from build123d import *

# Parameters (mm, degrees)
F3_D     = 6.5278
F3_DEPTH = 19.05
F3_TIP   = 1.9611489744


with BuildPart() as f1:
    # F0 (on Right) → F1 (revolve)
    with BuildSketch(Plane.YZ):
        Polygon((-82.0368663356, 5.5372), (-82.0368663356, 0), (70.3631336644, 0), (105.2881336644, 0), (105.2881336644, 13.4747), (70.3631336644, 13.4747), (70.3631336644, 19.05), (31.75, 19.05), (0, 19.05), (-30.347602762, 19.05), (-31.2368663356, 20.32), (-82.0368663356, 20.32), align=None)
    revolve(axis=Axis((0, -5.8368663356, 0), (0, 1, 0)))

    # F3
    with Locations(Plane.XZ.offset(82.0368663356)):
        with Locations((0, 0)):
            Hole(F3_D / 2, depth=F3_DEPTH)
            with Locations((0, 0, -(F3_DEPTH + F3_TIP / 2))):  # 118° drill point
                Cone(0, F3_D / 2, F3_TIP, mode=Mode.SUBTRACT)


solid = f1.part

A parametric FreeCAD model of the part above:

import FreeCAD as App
import Part
import Sketcher
from FreeCAD import Vector
Q = App.Units.Quantity

doc = App.newDocument("Part")
params = doc.addObject("Spreadsheet::Sheet", "Params")
for row, (alias, value) in enumerate([
    ("sketch1_width", "2 in"),
    ("sketch1_height", "0.8 in"),
    ("sketch1_width2", "7.375 in"),
    ("revolution_angle", "360 deg"),
    ("sketch2_diameter", "0.257 in"),
    ("hole_diameter", "0.257 in"),
    ("hole_depth", "0.75 in"),
], start=1):
    params.set(f"A{row}", alias)
    params.set(f"B{row}", "=" + value)
    params.setAlias(f"B{row}", alias)

body = doc.addObject("PartDesign::Body", "Body")

# Sketch on YZ plane
sketch1 = body.newObject("Sketcher::SketchObject", "Sketch")
sketch1.AttachmentSupport = (doc.getObject("YZ_Plane"), [""])
sketch1.MapMode = "FlatFace"
sketch1.addGeometry([
    Part.LineSegment(Vector(-82, 0, 0), Vector(105.3, 0, 0)),  # 0
    Part.LineSegment(Vector(105.3, 0, 0), Vector(105.3, 13.5, 0)),  # 1
    Part.LineSegment(Vector(105.3, 13.5, 0), Vector(70.4, 13.5, 0)),  # 2
    Part.LineSegment(Vector(70.4, 13.5, 0), Vector(70.4, 19.1, 0)),  # 3
    Part.LineSegment(Vector(70.4, 19.1, 0), Vector(-30.3, 19.1, 0)),  # 4
    Part.LineSegment(Vector(-30.3, 19.1, 0), Vector(-31.2, 20.3, 0)),  # 5
    Part.LineSegment(Vector(-31.2, 20.3, 0), Vector(-82, 20.3, 0)),  # 6
    Part.LineSegment(Vector(-82, 20.3, 0), Vector(-82, 0, 0)),  # 7
], False)
sketch1.addConstraint([
    Sketcher.Constraint("Coincident", 0, 2, 1, 1),
    Sketcher.Constraint("Coincident", 1, 2, 2, 1),
    Sketcher.Constraint("Coincident", 2, 2, 3, 1),
    Sketcher.Constraint("Coincident", 3, 2, 4, 1),
    Sketcher.Constraint("Coincident", 4, 2, 5, 1),
    Sketcher.Constraint("Coincident", 5, 2, 6, 1),
    Sketcher.Constraint("Coincident", 6, 2, 7, 1),
    Sketcher.Constraint("Coincident", 7, 2, 0, 1),
    Sketcher.Constraint("Horizontal", 0),
    Sketcher.Constraint("Vertical", 1),
    Sketcher.Constraint("Horizontal", 2),
    Sketcher.Constraint("Vertical", 3),
    Sketcher.Constraint("Horizontal", 4),
    Sketcher.Constraint("Horizontal", 6),
    Sketcher.Constraint("Vertical", 7),
    Sketcher.Constraint("PointOnObject", 0, 2, -1),
    Sketcher.Constraint("DistanceX", 6, 2, 6, 1, Q("2 in")),
    Sketcher.Constraint("DistanceY", 7, 2, 7, 1, Q("0.8 in")),
    Sketcher.Constraint("Angle", 5, Q("125 deg")),
    Sketcher.Constraint("DistanceX", 5, 2, 3, 2, Q("4 in")),
    Sketcher.Constraint("DistanceX", 0, 1, 0, 2, Q("7.375 in")),
    Sketcher.Constraint("DistanceY", -1, 1, 3, 2, Q("0.75 in")),
    Sketcher.Constraint("DistanceY", 1, 1, 1, 2, Q("0.5305 in")),
    Sketcher.Constraint("DistanceX", -1, 1, 0, 2, Q("105.288134 mm")),
])
sketch1.setExpression("Constraints[16]", "Params.sketch1_width")
sketch1.setExpression("Constraints[17]", "Params.sketch1_height")
sketch1.setExpression("Constraints[20]", "Params.sketch1_width2")
revolution = body.newObject("PartDesign::Revolution", "Revolution")
revolution.Profile = sketch1
revolution.ReferenceAxis = (sketch1, ["H_Axis"])
revolution.setExpression("Angle", "Params.revolution_angle")

# Sketch on XZ plane
sketch2 = body.newObject("Sketcher::SketchObject", "Sketch001")
sketch2.AttachmentSupport = (doc.getObject("XZ_Plane"), [""])
sketch2.MapMode = "FlatFace"
sketch2.AttachmentOffset = App.Placement(Vector(0, 0, 82.036866), App.Rotation())
sketch2.addGeometry(Part.Circle(Vector(0, 0, 0), Vector(0, 0, 1), 3.3), False)
sketch2.addConstraint([
    Sketcher.Constraint("Coincident", 0, 3, -1, 1),
    Sketcher.Constraint("Diameter", 0, Q("0.257 in")),
])
sketch2.setExpression("Constraints[1]", "Params.sketch2_diameter")
doc.recompute()
hole = body.newObject("PartDesign::Hole", "Hole")
hole.Profile = sketch2
hole.ThreadType = "None"
hole.setExpression("Diameter", "Params.hole_diameter")
hole.DepthType = "Dimension"
hole.setExpression("Depth", "Params.hole_depth")
hole.DrillPoint = "Angled"
hole.DrillPointAngle = 118

doc.recompute()
